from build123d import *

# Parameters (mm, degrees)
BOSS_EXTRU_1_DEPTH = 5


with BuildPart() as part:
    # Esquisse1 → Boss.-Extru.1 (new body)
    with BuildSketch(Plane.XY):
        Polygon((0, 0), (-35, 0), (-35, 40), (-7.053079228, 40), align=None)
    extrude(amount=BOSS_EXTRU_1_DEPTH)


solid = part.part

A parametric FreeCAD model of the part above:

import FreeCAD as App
import Part
import Sketcher
from FreeCAD import Vector
Q = App.Units.Quantity


def add_polygon(sketch, points):
    """Adds a closed chain of lines whose ends are joined by coincident constraints."""
    first, n = sketch.GeometryCount, len(points)
    for a, b in zip(points, points[1:] + points[:1]):
        sketch.addGeometry(Part.LineSegment(App.Vector(*a, 0), App.Vector(*b, 0)), False)
    for i in range(n):
        sketch.addConstraint(Sketcher.Constraint("Coincident", first + i, 2, first + (i + 1) % n, 1))

doc = App.newDocument("Part")
body = doc.addObject("PartDesign::Body", "Body")

# Sketch on XY plane
sketch1 = body.newObject("Sketcher::SketchObject", "Sketch")
sketch1.AttachmentSupport = (doc.getObject("XY_Plane"), [""])
sketch1.MapMode = "FlatFace"
add_polygon(sketch1, [(-35, 0), (0, 0), (-7, 40), (-35, 40)])  # lines 0-3
sketch1.addConstraint(Sketcher.Constraint("Horizontal", 0))
sketch1.addConstraint(Sketcher.Constraint("Horizontal", 2))
sketch1.addConstraint(Sketcher.Constraint("Vertical", 3))
sketch1.addConstraint(Sketcher.Constraint("Coincident", 0, 2, -1, 1))
sketch1.addConstraint(Sketcher.Constraint("DistanceX", 0, 1, 0, 2, 35.0))
sketch1.addConstraint(Sketcher.Constraint("DistanceY", 3, 2, 3, 1, 40.0))
sketch1.addConstraint(Sketcher.Constraint("Angle", 1, Q("100 deg")))
pad1 = body.newObject("PartDesign::Pad", "Pad")
pad1.Profile = sketch1
pad1.Length = 5

doc.recompute()
